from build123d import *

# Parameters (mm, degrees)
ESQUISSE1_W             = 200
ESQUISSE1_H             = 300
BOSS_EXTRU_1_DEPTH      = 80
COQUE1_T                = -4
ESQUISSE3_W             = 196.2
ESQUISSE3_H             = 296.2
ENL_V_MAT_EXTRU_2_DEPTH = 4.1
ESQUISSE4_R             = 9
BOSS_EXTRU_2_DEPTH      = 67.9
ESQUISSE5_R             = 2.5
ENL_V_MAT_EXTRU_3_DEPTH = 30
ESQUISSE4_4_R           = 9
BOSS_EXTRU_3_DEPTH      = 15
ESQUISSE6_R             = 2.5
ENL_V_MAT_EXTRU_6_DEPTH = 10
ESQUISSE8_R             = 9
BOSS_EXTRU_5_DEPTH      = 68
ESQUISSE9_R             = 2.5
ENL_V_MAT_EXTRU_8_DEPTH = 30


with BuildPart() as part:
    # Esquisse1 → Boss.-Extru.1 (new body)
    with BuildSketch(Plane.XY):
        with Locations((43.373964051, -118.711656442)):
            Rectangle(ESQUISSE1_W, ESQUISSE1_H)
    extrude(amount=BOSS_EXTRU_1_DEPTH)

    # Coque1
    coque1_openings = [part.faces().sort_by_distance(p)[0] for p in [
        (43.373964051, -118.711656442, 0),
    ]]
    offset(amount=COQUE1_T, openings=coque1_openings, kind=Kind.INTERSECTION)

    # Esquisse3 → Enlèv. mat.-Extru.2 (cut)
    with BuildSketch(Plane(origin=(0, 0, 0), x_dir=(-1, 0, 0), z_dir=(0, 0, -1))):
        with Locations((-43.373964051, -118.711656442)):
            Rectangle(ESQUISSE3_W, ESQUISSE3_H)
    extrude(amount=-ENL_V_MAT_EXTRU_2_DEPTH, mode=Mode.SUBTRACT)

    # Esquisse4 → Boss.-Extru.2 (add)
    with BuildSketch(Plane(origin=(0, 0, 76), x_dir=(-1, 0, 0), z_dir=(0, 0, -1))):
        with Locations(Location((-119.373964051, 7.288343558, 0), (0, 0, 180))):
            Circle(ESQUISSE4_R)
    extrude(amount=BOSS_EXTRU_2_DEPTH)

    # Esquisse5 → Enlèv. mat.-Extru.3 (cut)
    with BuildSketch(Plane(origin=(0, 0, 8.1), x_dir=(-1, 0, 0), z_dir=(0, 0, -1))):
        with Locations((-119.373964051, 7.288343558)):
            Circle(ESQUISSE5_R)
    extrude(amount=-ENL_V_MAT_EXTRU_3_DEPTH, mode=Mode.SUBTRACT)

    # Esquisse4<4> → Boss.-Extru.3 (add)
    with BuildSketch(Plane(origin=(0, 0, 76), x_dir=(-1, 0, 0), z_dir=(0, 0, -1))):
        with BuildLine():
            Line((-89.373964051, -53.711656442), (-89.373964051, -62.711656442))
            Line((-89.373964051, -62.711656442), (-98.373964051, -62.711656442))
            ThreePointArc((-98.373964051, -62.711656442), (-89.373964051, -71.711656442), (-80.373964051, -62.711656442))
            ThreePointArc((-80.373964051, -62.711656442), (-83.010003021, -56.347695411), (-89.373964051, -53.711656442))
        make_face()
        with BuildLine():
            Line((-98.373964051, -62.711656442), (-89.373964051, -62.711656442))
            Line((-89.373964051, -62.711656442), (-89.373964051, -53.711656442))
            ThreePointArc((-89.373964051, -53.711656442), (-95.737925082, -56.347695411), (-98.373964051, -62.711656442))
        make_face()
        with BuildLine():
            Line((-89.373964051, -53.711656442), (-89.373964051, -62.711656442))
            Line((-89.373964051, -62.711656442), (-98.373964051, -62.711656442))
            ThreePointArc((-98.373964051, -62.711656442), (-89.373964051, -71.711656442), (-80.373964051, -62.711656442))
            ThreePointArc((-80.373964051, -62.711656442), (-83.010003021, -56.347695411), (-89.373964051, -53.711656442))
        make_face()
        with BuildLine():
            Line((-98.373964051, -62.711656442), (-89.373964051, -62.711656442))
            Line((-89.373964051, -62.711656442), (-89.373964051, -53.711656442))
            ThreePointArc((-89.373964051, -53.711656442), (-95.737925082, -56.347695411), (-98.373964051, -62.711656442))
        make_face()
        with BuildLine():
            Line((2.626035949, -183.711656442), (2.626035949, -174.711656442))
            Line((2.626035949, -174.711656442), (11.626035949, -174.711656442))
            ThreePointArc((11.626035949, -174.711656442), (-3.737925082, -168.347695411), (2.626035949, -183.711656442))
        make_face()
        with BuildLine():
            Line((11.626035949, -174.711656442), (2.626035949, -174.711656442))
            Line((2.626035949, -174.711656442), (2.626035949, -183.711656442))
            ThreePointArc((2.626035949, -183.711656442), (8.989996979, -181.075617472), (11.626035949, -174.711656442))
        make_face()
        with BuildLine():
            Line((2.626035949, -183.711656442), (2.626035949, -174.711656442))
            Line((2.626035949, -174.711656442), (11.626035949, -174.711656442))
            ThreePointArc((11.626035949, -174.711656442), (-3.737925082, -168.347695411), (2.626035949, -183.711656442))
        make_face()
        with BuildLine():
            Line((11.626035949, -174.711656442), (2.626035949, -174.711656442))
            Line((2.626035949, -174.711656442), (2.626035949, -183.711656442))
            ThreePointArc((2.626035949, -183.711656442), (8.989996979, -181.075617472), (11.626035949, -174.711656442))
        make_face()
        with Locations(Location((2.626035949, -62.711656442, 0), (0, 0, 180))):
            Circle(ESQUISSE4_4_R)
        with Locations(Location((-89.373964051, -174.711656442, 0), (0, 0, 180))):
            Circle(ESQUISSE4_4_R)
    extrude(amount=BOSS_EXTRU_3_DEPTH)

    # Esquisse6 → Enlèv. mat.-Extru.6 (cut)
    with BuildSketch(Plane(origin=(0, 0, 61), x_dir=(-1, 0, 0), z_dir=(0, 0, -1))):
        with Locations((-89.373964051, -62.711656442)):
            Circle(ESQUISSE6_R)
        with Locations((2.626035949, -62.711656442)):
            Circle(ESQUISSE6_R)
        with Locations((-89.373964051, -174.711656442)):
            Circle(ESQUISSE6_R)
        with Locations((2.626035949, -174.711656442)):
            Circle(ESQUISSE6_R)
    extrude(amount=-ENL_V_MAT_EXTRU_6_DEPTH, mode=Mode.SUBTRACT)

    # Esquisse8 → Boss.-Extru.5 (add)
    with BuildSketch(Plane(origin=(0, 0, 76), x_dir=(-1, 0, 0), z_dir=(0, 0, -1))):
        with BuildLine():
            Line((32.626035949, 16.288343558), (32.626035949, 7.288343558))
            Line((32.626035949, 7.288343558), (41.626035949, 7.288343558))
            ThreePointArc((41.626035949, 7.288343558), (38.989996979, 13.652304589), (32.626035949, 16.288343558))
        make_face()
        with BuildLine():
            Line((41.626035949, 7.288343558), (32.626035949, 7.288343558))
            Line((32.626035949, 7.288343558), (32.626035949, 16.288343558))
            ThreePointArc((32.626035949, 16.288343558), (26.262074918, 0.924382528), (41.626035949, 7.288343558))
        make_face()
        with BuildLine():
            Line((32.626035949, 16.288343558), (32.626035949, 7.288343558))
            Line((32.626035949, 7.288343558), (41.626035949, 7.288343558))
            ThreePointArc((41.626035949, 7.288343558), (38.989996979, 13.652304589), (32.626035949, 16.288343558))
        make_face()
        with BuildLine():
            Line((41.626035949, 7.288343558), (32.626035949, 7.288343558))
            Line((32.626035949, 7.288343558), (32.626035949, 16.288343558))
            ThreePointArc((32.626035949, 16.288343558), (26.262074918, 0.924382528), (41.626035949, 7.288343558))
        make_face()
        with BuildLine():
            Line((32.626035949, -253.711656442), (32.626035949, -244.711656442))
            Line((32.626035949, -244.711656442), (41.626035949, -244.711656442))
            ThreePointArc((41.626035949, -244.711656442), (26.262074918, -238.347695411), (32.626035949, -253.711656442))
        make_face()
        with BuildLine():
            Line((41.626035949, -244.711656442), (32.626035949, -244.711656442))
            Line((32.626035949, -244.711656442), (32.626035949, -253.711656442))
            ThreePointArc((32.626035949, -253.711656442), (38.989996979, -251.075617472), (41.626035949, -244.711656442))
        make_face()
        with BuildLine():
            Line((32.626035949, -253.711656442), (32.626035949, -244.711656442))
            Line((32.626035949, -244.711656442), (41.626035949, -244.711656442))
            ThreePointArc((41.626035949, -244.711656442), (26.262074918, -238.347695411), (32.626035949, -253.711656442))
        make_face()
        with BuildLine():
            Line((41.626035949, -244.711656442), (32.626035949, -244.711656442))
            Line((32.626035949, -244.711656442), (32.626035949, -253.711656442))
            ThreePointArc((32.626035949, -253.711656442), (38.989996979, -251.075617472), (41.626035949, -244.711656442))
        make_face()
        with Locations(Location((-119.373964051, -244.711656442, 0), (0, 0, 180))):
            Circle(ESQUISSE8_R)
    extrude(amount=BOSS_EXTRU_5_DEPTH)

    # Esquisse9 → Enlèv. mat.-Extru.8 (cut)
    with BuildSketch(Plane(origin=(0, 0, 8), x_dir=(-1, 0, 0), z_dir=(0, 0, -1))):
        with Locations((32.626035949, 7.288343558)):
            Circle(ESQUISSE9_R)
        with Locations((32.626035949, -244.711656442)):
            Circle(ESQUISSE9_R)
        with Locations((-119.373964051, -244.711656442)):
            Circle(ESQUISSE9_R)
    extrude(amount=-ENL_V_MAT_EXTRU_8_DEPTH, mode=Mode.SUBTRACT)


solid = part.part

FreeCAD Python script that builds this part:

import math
import FreeCAD as App
import Part
import Sketcher
Q = App.Units.Quantity


def faces_at(feature, points):
    """Names of the faces that lie closest to the given points."""
    faces = feature.Shape.Faces
    near = lambda p: min(range(len(faces)), key=lambda i: faces[i].distToShape(Part.Vertex(*p))[0])
    return sorted({f"Face{near(p) + 1}" for p in points})

doc = App.newDocument("Part")
body = doc.addObject("PartDesign::Body", "Body")

# Sketch on XY plane
sketch1 = body.newObject("Sketcher::SketchObject", "Sketch")
sketch1.AttachmentSupport = (doc.getObject("XY_Plane"), [""])
sketch1.MapMode = "FlatFace"
sketch1.addGeometry([
    Part.LineSegment(App.Vector(-56.626036, 31.288344, 0), App.Vector(-56.626036, -268.711656, 0)),
    Part.LineSegment(App.Vector(-56.626036, -268.711656, 0), App.Vector(143.373964, -268.711656, 0)),
    Part.LineSegment(App.Vector(143.373964, -268.711656, 0), App.Vector(143.373964, 31.288344, 0)),
    Part.LineSegment(App.Vector(143.373964, 31.288344, 0), App.Vector(-56.626036, 31.288344, 0)),
], False)
sketch1.addConstraint([
    Sketcher.Constraint("Coincident", 0, 2, 1, 1),
    Sketcher.Constraint("Coincident", 1, 2, 2, 1),
    Sketcher.Constraint("Coincident", 2, 2, 3, 1),
    Sketcher.Constraint("Coincident", 3, 2, 0, 1),
    Sketcher.Constraint("Vertical", 0),
    Sketcher.Constraint("Horizontal", 1),
    Sketcher.Constraint("Vertical", 2),
    Sketcher.Constraint("Horizontal", 3),
    Sketcher.Constraint("DistanceX", 1, 1, 1, 2, Q("200 mm")),
    Sketcher.Constraint("DistanceY", 0, 2, 0, 1, Q("300 mm")),
    Sketcher.Constraint("DistanceX", 0, 2, -1, 1, Q("56.626036 mm")),
    Sketcher.Constraint("DistanceY", 0, 2, -1, 1, Q("268.711656 mm")),
])
pad1 = body.newObject("PartDesign::Pad", "Pad")
pad1.Profile = sketch1
pad1.Length = 80
doc.recompute()

thickness = body.newObject("PartDesign::Thickness", "Thickness")
thickness.Base = (pad1, faces_at(pad1, [(43.374, -118.712, 0)]))
thickness.Value = 4
thickness.Reversed = True
thickness.Join = "Intersection"

# Sketch on XY plane
sketch2 = body.newObject("Sketcher::SketchObject", "Sketch001")
sketch2.AttachmentSupport = (doc.getObject("XY_Plane"), [""])
sketch2.MapMode = "FlatFace"
sketch2.addGeometry([
    Part.LineSegment(App.Vector(141.473964, 29.388344, 0), App.Vector(141.473964, -266.811656, 0)),
    Part.LineSegment(App.Vector(141.473964, -266.811656, 0), App.Vector(-54.726036, -266.811656, 0)),
    Part.LineSegment(App.Vector(-54.726036, -266.811656, 0), App.Vector(-54.726036, 29.388344, 0)),
    Part.LineSegment(App.Vector(-54.726036, 29.388344, 0), App.Vector(141.473964, 29.388344, 0)),
], False)
sketch2.addConstraint([
    Sketcher.Constraint("Coincident", 0, 2, 1, 1),
    Sketcher.Constraint("Coincident", 1, 2, 2, 1),
    Sketcher.Constraint("Coincident", 2, 2, 3, 1),
    Sketcher.Constraint("Coincident", 3, 2, 0, 1),
    Sketcher.Constraint("Vertical", 0),
    Sketcher.Constraint("Horizontal", 1),
    Sketcher.Constraint("Vertical", 2),
    Sketcher.Constraint("Horizontal", 3),
    Sketcher.Constraint("DistanceX", 1, 2, 1, 1, Q("196.2 mm")),
    Sketcher.Constraint("DistanceY", 0, 2, 0, 1, Q("296.2 mm")),
    Sketcher.Constraint("DistanceX", -1, 1, 0, 2, Q("141.473964 mm")),
    Sketcher.Constraint("DistanceY", 0, 2, -1, 1, Q("266.811656 mm")),
])
pocket1 = body.newObject("PartDesign::Pocket", "Pocket")
pocket1.Profile = sketch2
pocket1.Length = 4.1
pocket1.Reversed = True

# Sketch on XY plane
sketch3 = body.newObject("Sketcher::SketchObject", "Sketch002")
sketch3.AttachmentSupport = (doc.getObject("XY_Plane"), [""])
sketch3.MapMode = "FlatFace"
sketch3.AttachmentOffset = App.Placement(App.Vector(0, 0, 76), App.Rotation())
sketch3.addGeometry(Part.Circle(App.Vector(119.373964, 7.288344, 0), App.Vector(0, 0, 1), 9), False)
sketch3.addConstraint([
    Sketcher.Constraint("Diameter", 0, Q("18 mm")),
    Sketcher.Constraint("DistanceX", -1, 1, 0, 3, Q("119.373964 mm")),
    Sketcher.Constraint("DistanceY", -1, 1, 0, 3, Q("7.288344 mm")),
])
pad2 = body.newObject("PartDesign::Pad", "Pad001")
pad2.Profile = sketch3
pad2.Length = 67.9
pad2.Reversed = True

# Sketch on XY plane
sketch4 = body.newObject("Sketcher::SketchObject", "Sketch003")
sketch4.AttachmentSupport = (doc.getObject("XY_Plane"), [""])
sketch4.MapMode = "FlatFace"
sketch4.AttachmentOffset = App.Placement(App.Vector(0, 0, 8.1), App.Rotation())
sketch4.addGeometry(Part.Circle(App.Vector(119.373964, 7.288344, 0), App.Vector(0, 0, 1), 2.5), False)
sketch4.addConstraint([
    Sketcher.Constraint("Diameter", 0, Q("5 mm")),
    Sketcher.Constraint("DistanceX", -1, 1, 0, 3, Q("119.373964 mm")),
    Sketcher.Constraint("DistanceY", -1, 1, 0, 3, Q("7.288344 mm")),
])
pocket2 = body.newObject("PartDesign::Pocket", "Pocket001")
pocket2.Profile = sketch4
pocket2.Length = 30
pocket2.Reversed = True

# Sketch on XY plane
sketch5 = body.newObject("Sketcher::SketchObject", "Sketch004")
sketch5.AttachmentSupport = (doc.getObject("XY_Plane"), [""])
sketch5.MapMode = "FlatFace"
sketch5.AttachmentOffset = App.Placement(App.Vector(0, 0, 76), App.Rotation())
sketch5.addGeometry([
    Part.ArcOfCircle(Part.Circle(App.Vector(89.373964, -62.711656, 0), App.Vector(0, 0, 1), 9), math.radians(180), math.radians(360)),  # 0
    Part.ArcOfCircle(Part.Circle(App.Vector(89.373964, -62.711656, 0), App.Vector(0, 0, 1), 9), math.radians(90), math.radians(180)),  # 1
    Part.ArcOfCircle(Part.Circle(App.Vector(89.373964, -62.711656, 0), App.Vector(0, 0, 1), 9), math.radians(0), math.radians(90)),  # 2
    Part.ArcOfCircle(Part.Circle(App.Vector(-2.626036, -174.711656, 0), App.Vector(0, 0, 1), 9), math.radians(-90), math.radians(180)),  # 3
    Part.ArcOfCircle(Part.Circle(App.Vector(-2.626036, -174.711656, 0), App.Vector(0, 0, 1), 9), math.radians(-180), math.radians(-90)),  # 4
    Part.Circle(App.Vector(-2.626036, -62.711656, 0), App.Vector(0, 0, 1), 9),  # 5
    Part.Circle(App.Vector(89.373964, -174.711656, 0), App.Vector(0, 0, 1), 9),  # 6
], False)
sketch5.addConstraint([
    Sketcher.Constraint("Tangent", 0, 1, 1, 2),
    Sketcher.Constraint("Tangent", 1, 1, 2, 2),
    Sketcher.Constraint("Tangent", 2, 1, 0, 2),
    Sketcher.Constraint("Tangent", 3, 1, 4, 2),
    Sketcher.Constraint("Coincident", 4, 1, 3, 2),
    Sketcher.Constraint("Equal", 2, 3),
    Sketcher.Constraint("Equal", 4, 5),
    Sketcher.Constraint("Equal", 5, 6),
    Sketcher.Constraint("Horizontal", 2, 3, 5, 3),
    Sketcher.Constraint("Horizontal", 4, 3, 6, 3),
    Sketcher.Constraint("Horizontal", 5, 3, 0, 1),
    Sketcher.Constraint("Horizontal", 0, 1, 2, 1),
    Sketcher.Constraint("Horizontal", 6, 3, 4, 1),
    Sketcher.Constraint("Vertical", 4, 3, 5, 3),
    Sketcher.Constraint("Vertical", 2, 3, 6, 3),
    Sketcher.Constraint("Vertical", 6, 3, 1, 1),
    Sketcher.Constraint("Vertical", 5, 3, 3, 1),
    Sketcher.Constraint("Diameter", 5, Q("18 mm")),
    Sketcher.Constraint("DistanceX", 3, 3, 1, 3, Q("92 mm")),
    Sketcher.Constraint("DistanceY", 3, 3, 1, 3, Q("112 mm")),
    Sketcher.Constraint("DistanceX", -1, 1, 0, 3, Q("89.373964 mm")),
    Sketcher.Constraint("DistanceY", 0, 3, -1, 1, Q("62.711656 mm")),
])
pad3 = body.newObject("PartDesign::Pad", "Pad002")
pad3.Profile = sketch5
pad3.Length = 15
pad3.Reversed = True

# Sketch on XY plane
sketch6 = body.newObject("Sketcher::SketchObject", "Sketch005")
sketch6.AttachmentSupport = (doc.getObject("XY_Plane"), [""])
sketch6.MapMode = "FlatFace"
sketch6.AttachmentOffset = App.Placement(App.Vector(0, 0, 61), App.Rotation())
sketch6.addGeometry([
    Part.Circle(App.Vector(89.373964, -62.711656, 0), App.Vector(0, 0, 1), 2.5),
    Part.Circle(App.Vector(-2.626036, -62.711656, 0), App.Vector(0, 0, 1), 2.5),
    Part.Circle(App.Vector(89.373964, -174.711656, 0), App.Vector(0, 0, 1), 2.5),
    Part.Circle(App.Vector(-2.626036, -174.711656, 0), App.Vector(0, 0, 1), 2.5),
], False)
sketch6.addConstraint([
    Sketcher.Constraint("Equal", 0, 1),
    Sketcher.Constraint("Equal", 1, 2),
    Sketcher.Constraint("Equal", 2, 3),
    Sketcher.Constraint("Horizontal", 0, 3, 1, 3),
    Sketcher.Constraint("Horizontal", 2, 3, 3, 3),
    Sketcher.Constraint("Vertical", 0, 3, 2, 3),
    Sketcher.Constraint("Vertical", 1, 3, 3, 3),
    Sketcher.Constraint("Diameter", 0, Q("5 mm")),
    Sketcher.Constraint("DistanceX", 1, 3, 0, 3, Q("92 mm")),
    Sketcher.Constraint("DistanceY", 2, 3, 0, 3, Q("112 mm")),
    Sketcher.Constraint("DistanceX", -1, 1, 0, 3, Q("89.373964 mm")),
    Sketcher.Constraint("DistanceY", 0, 3, -1, 1, Q("62.711656 mm")),
])
pocket3 = body.newObject("PartDesign::Pocket", "Pocket002")
pocket3.Profile = sketch6
pocket3.Length = 10
pocket3.Reversed = True

# Sketch on XY plane
sketch7 = body.newObject("Sketcher::SketchObject", "Sketch006")
sketch7.AttachmentSupport = (doc.getObject("XY_Plane"), [""])
sketch7.MapMode = "FlatFace"
sketch7.AttachmentOffset = App.Placement(App.Vector(0, 0, 76), App.Rotation())
sketch7.addGeometry([
    Part.ArcOfCircle(Part.Circle(App.Vector(-32.626036, 7.288344, 0), App.Vector(0, 0, 1), 9), math.radians(90), math.radians(180)),  # 0
    Part.ArcOfCircle(Part.Circle(App.Vector(-32.626036, 7.288344, 0), App.Vector(0, 0, 1), 9), math.radians(180), math.radians(450)),  # 1
    Part.ArcOfCircle(Part.Circle(App.Vector(-32.626036, -244.711656, 0), App.Vector(0, 0, 1), 9), math.radians(-90), math.radians(180)),  # 2
    Part.ArcOfCircle(Part.Circle(App.Vector(-32.626036, -244.711656, 0), App.Vector(0, 0, 1), 9), math.radians(-180), math.radians(-90)),  # 3
    Part.Circle(App.Vector(119.373964, -244.711656, 0), App.Vector(0, 0, 1), 9),  # 4
], False)
sketch7.addConstraint([
    Sketcher.Constraint("Tangent", 0, 1, 1, 2),
    Sketcher.Constraint("Coincident", 1, 1, 0, 2),
    Sketcher.Constraint("Tangent", 2, 1, 3, 2),
    Sketcher.Constraint("Coincident", 3, 1, 2, 2),
    Sketcher.Constraint("Equal", 1, 2),
    Sketcher.Constraint("Equal", 3, 4),
    Sketcher.Constraint("Horizontal", 3, 3, 4, 3),
    Sketcher.Constraint("Horizontal", 0, 3, 1, 1),
    Sketcher.Constraint("Horizontal", 4, 3, 3, 1),
    Sketcher.Constraint("Vertical", 1, 3, 2, 3),
    Sketcher.Constraint("Vertical", 3, 3, 0, 1),
    Sketcher.Constraint("Vertical", 0, 1, 2, 1),
    Sketcher.Constraint("Diameter", 4, Q("18 mm")),
    Sketcher.Constraint("DistanceY", 2, 3, 0, 3, Q("252 mm")),
    Sketcher.Constraint("DistanceX", 3, 3, 4, 3, Q("152 mm")),
    Sketcher.Constraint("DistanceX", 0, 3, -1, 1, Q("32.626036 mm")),
    Sketcher.Constraint("DistanceY", -1, 1, 0, 3, Q("7.288344 mm")),
])
pad4 = body.newObject("PartDesign::Pad", "Pad003")
pad4.Profile = sketch7
pad4.Length = 68
pad4.Reversed = True

# Sketch on XY plane
sketch8 = body.newObject("Sketcher::SketchObject", "Sketch007")
sketch8.AttachmentSupport = (doc.getObject("XY_Plane"), [""])
sketch8.MapMode = "FlatFace"
sketch8.AttachmentOffset = App.Placement(App.Vector(0, 0, 8), App.Rotation())
sketch8.addGeometry([
    Part.Circle(App.Vector(-32.626036, 7.288344, 0), App.Vector(0, 0, 1), 2.5),
    Part.Circle(App.Vector(-32.626036, -244.711656, 0), App.Vector(0, 0, 1), 2.5),
    Part.Circle(App.Vector(119.373964, -244.711656, 0), App.Vector(0, 0, 1), 2.5),
], False)
sketch8.addConstraint([
    Sketcher.Constraint("Equal", 0, 1),
    Sketcher.Constraint("Equal", 1, 2),
    Sketcher.Constraint("Horizontal", 1, 3, 2, 3),
    Sketcher.Constraint("Vertical", 0, 3, 1, 3),
    Sketcher.Constraint("Diameter", 0, Q("5 mm")),
    Sketcher.Constraint("DistanceY", 1, 3, 0, 3, Q("252 mm")),
    Sketcher.Constraint("DistanceX", 1, 3, 2, 3, Q("152 mm")),
    Sketcher.Constraint("DistanceX", 0, 3, -1, 1, Q("32.626036 mm")),
    Sketcher.Constraint("DistanceY", -1, 1, 0, 3, Q("7.288344 mm")),
])
pocket4 = body.newObject("PartDesign::Pocket", "Pocket003")
pocket4.Profile = sketch8
pocket4.Length = 30
pocket4.Reversed = True

doc.recompute()
